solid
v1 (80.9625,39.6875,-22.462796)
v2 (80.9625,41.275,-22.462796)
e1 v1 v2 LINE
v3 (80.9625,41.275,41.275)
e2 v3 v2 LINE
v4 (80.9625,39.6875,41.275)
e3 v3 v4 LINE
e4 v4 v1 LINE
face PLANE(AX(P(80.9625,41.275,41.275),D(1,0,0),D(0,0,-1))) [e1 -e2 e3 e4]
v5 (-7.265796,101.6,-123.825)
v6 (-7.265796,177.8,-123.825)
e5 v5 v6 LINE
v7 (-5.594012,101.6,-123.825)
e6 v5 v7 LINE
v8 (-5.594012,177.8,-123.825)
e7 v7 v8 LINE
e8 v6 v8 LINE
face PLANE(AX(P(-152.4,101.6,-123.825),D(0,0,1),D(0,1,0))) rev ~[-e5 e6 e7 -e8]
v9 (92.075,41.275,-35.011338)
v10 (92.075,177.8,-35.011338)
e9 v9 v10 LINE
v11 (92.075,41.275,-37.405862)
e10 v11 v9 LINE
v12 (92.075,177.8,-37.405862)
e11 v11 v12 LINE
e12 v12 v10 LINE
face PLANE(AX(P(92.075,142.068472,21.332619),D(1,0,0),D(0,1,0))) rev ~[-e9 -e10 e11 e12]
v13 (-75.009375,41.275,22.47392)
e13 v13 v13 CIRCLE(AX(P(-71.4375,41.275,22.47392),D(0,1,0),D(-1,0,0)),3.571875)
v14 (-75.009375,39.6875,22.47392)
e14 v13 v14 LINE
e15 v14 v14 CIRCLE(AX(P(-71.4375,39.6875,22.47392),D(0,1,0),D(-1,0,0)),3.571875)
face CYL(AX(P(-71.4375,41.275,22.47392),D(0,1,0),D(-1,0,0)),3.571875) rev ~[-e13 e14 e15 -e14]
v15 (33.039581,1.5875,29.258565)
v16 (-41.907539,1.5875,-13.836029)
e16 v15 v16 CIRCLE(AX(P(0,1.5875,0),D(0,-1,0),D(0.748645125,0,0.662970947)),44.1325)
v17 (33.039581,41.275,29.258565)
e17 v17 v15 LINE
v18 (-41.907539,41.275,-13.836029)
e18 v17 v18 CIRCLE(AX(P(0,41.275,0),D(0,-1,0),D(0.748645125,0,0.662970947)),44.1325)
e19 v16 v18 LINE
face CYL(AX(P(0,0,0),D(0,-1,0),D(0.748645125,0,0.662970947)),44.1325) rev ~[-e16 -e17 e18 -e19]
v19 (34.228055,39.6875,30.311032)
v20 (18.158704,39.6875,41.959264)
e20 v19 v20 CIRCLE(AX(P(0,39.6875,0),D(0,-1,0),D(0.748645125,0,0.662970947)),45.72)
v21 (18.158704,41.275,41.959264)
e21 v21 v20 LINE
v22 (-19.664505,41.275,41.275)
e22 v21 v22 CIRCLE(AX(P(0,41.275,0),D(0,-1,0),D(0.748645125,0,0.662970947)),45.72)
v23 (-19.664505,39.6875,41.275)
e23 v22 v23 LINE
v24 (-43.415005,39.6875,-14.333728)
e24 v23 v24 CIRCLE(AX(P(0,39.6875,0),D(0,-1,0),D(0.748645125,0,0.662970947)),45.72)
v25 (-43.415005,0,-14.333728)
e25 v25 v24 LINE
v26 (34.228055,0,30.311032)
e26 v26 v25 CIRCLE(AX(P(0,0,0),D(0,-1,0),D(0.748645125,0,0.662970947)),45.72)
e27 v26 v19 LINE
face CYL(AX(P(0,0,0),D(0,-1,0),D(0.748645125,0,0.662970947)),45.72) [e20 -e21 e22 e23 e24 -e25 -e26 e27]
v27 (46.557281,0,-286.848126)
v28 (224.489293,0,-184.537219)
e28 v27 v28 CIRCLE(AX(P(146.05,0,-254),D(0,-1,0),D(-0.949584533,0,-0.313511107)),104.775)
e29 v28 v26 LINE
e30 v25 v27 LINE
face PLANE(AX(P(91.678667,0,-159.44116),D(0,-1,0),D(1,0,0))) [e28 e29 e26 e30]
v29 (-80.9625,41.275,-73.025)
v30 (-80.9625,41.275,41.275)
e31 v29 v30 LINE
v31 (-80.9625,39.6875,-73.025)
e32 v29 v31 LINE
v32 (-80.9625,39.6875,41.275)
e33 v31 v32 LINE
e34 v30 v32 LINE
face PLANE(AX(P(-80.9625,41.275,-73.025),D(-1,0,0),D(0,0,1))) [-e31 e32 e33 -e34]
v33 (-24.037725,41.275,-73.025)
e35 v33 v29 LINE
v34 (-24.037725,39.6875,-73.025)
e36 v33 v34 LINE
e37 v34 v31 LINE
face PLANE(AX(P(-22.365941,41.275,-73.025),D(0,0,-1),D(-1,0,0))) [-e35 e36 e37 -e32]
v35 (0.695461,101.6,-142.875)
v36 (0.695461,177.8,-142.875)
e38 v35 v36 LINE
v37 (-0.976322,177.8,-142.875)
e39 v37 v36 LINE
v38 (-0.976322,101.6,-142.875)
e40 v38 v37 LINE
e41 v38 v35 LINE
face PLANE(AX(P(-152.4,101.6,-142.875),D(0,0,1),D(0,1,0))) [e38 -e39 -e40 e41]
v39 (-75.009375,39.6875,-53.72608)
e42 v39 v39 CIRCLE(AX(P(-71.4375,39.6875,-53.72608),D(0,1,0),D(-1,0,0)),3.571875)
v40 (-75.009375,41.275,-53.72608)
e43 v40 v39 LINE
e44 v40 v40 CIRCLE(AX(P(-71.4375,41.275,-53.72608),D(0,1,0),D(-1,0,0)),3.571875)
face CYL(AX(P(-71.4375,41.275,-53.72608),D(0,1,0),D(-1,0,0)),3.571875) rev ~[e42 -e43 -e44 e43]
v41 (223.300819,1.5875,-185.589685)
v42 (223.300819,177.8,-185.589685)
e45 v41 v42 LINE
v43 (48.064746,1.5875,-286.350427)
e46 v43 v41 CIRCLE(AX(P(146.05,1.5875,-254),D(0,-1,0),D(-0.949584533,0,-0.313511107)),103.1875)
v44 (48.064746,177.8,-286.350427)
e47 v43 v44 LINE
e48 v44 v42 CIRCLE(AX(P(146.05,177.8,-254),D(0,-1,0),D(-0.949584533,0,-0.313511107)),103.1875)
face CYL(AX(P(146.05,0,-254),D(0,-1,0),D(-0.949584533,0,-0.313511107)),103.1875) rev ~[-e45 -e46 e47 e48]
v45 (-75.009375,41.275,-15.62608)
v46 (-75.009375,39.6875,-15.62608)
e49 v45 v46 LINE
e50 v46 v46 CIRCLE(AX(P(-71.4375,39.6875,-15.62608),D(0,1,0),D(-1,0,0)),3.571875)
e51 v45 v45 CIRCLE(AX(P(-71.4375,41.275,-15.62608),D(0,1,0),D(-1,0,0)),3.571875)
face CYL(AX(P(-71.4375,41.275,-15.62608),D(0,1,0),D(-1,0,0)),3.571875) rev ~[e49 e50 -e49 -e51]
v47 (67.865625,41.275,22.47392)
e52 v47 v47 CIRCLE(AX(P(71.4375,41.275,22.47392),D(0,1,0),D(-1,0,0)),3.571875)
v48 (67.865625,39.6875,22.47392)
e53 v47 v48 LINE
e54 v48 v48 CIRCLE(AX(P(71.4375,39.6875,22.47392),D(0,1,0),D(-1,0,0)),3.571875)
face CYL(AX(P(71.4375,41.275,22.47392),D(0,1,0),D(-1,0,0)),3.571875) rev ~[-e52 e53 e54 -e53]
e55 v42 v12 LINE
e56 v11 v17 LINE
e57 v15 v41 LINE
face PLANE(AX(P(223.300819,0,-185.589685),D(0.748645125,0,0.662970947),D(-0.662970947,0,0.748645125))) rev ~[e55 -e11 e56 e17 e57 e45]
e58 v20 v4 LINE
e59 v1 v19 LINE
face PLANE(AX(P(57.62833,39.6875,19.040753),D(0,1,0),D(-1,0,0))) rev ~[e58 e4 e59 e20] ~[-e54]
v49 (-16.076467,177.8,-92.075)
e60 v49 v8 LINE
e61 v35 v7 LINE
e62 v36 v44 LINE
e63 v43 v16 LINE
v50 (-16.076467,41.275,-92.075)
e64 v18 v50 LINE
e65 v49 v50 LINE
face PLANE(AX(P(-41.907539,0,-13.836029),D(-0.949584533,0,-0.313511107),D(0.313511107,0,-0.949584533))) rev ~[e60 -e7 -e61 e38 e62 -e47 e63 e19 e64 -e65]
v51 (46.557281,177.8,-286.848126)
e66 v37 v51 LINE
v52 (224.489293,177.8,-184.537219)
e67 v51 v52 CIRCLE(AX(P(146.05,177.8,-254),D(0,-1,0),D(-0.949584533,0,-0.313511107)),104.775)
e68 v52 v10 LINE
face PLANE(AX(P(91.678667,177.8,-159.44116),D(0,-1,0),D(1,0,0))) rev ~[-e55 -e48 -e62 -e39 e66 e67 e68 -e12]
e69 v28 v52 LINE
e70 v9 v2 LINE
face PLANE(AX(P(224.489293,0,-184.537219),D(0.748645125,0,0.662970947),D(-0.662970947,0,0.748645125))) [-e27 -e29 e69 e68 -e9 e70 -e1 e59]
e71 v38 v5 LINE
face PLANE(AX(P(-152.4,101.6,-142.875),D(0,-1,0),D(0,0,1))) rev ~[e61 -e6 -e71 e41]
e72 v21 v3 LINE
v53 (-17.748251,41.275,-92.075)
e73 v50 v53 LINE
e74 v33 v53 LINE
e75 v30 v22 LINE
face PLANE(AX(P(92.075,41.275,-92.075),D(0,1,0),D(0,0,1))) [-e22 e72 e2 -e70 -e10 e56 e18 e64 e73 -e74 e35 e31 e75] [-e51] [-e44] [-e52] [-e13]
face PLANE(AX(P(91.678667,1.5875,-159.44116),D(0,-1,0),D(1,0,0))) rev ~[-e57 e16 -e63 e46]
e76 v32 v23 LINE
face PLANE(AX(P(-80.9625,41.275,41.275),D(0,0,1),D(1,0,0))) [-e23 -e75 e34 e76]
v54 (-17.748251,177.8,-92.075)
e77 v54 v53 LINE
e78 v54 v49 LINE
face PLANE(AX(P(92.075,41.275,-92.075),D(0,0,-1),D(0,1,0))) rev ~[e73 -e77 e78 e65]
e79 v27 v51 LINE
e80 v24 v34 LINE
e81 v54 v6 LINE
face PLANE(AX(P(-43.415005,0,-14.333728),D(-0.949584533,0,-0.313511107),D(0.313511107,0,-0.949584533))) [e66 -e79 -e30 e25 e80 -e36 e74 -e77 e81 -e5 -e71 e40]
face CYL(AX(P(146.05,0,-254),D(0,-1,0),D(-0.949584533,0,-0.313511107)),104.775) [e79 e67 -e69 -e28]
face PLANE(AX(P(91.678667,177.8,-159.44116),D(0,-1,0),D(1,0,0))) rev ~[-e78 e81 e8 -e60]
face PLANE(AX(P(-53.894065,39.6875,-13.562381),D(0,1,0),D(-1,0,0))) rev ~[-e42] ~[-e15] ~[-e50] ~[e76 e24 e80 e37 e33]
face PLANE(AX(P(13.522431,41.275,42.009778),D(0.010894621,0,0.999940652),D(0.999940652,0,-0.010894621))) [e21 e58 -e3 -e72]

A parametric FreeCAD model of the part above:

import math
import FreeCAD as App
import Part
import Sketcher
Q = App.Units.Quantity


def faces_at(feature, points):
    """Names of the faces that lie closest to the given points."""
    faces = feature.Shape.Faces
    near = lambda p: min(range(len(faces)), key=lambda i: faces[i].distToShape(Part.Vertex(*p))[0])
    return sorted({f"Face{near(p) + 1}" for p in points})


def add_polygon(sketch, points):
    """Adds a closed chain of lines whose ends are joined by coincident constraints."""
    first, n = sketch.GeometryCount, len(points)
    for a, b in zip(points, points[1:] + points[:1]):
        sketch.addGeometry(Part.LineSegment(App.Vector(*a, 0), App.Vector(*b, 0)), False)
    for i in range(n):
        sketch.addConstraint(Sketcher.Constraint("Coincident", first + i, 2, first + (i + 1) % n, 1))

doc = App.newDocument("Part")
params = doc.addObject("Spreadsheet::Sheet", "Params")
for row, (alias, value) in enumerate([
    ("sketch1_radius", "1.8 in"),
    ("sketch1_radius2", "4.125 in"),
    ("pad1_length", "7 in"),
    ("thickness_wall", "0.0625 in"),
    ("sketch3_diameter", "0.28125 in"),
    ("sketch3_height", "4.5 in"),
    ("pad2_length", "0.0625 in"),
    ("sketch4_width", "3 in"),
    ("sketch4_height", "0.75 in"),
    ("pocket2_length", "154.095461 mm"),
], start=1):
    params.set(f"A{row}", alias)
    params.set(f"B{row}", "=" + value)
    params.setAlias(f"B{row}", alias)

body = doc.addObject("PartDesign::Body", "Body")

sketch1 = body.newObject("Sketcher::SketchObject", "Sketch")
sketch1.AttachmentSupport = (doc.getObject("XZ_Plane"), [""])
sketch1.MapMode = "FlatFace"
sketch1.addGeometry(Part.LineSegment(App.Vector(224.489293, -184.537219, 0), App.Vector(34.228055, 30.311032, 0)), False)
sketch1.addGeometry(Part.ArcOfCircle(Part.Circle(App.Vector(0, 0, 0), App.Vector(0, 0, 1), 45.72), math.radians(41.52685), math.radians(198.270954)), False)
sketch1.addGeometry(Part.LineSegment(App.Vector(-43.415005, -14.333728, 0), App.Vector(46.557281, -286.848126, 0)), False)
sketch1.addGeometry(Part.ArcOfCircle(Part.Circle(App.Vector(146.05, -254, 0), App.Vector(0, 0, 1), 104.775), math.radians(-161.729046), math.radians(41.52685)), False)
sketch1.addConstraint(Sketcher.Constraint("Tangent", 0, 2, 1, 1))
sketch1.addConstraint(Sketcher.Constraint("Tangent", 1, 2, 2, 1))
sketch1.addConstraint(Sketcher.Constraint("Tangent", 2, 2, 3, 1))
sketch1.addConstraint(Sketcher.Constraint("Tangent", 3, 2, 0, 1))
sketch1.addConstraint(Sketcher.Constraint("Coincident", 1, 3, -1, 1))
sketch1.addConstraint(Sketcher.Constraint("Radius", 1, Q("1.8 in")))
sketch1.addConstraint(Sketcher.Constraint("DistanceY", 3, 3, -1, 1, Q("10 in")))
sketch1.addConstraint(Sketcher.Constraint("Radius", 3, Q("4.125 in")))
sketch1.addConstraint(Sketcher.Constraint("DistanceX", -1, 1, 3, 3, Q("5.75 in")))
sketch1.setExpression("Constraints[5]", "Params.sketch1_radius")
sketch1.setExpression("Constraints[7]", "Params.sketch1_radius2")
pad1 = body.newObject("PartDesign::Pad", "Pad")
pad1.Profile = sketch1
pad1.setExpression("Length", "Params.pad1_length")
pad1.Reversed = True
doc.recompute()

thickness = body.newObject("PartDesign::Thickness", "Thickness")
thickness.Base = (pad1, faces_at(pad1, [(102.552, 177.8, -156.528)]))
thickness.setExpression("Value", "Params.thickness_wall")
thickness.Reversed = True
thickness.Join = "Arc"

sketch2 = body.newObject("Sketcher::SketchObject", "Sketch001")
sketch2.AttachmentSupport = (doc.getObject("YZ_Plane"), [""])
sketch2.MapMode = "FlatFace"
sketch2.AttachmentOffset = App.Placement(App.Vector(0, 0, 3.625 * 25.4), App.Rotation())
add_polygon(sketch2, [(41.275, 134.740237), (41.275, -92.075), (242.861945, -92.075), (242.861945, 134.740237)])
sketch2.addConstraint(Sketcher.Constraint("Vertical", 0))
sketch2.addConstraint(Sketcher.Constraint("Horizontal", 1))
sketch2.addConstraint(Sketcher.Constraint("Vertical", 2))
sketch2.addConstraint(Sketcher.Constraint("Horizontal", 3))
sketch2.addConstraint(Sketcher.Constraint("DistanceX", -1, 1, 0, 2, Q("1.625 in")))
sketch2.addConstraint(Sketcher.Constraint("DistanceY", 0, 2, -1, 1, Q("3.625 in")))
sketch2.addConstraint(Sketcher.Constraint("DistanceX", 1, 1, 1, 2, Q("201.586945 mm")))
sketch2.addConstraint(Sketcher.Constraint("DistanceY", 0, 2, 0, 1, Q("226.815237 mm")))
pocket1 = body.newObject("PartDesign::Pocket", "Pocket")
pocket1.Profile = sketch2
pocket1.Type = "ThroughAll"

sketch3 = body.newObject("Sketcher::SketchObject", "Sketch002")
sketch3.AttachmentSupport = (doc.getObject("XZ_Plane"), [""])
sketch3.MapMode = "FlatFace"
sketch3.AttachmentOffset = App.Placement(App.Vector(0, 0, -1.625 * 25.4), App.Rotation())
sketch3.addGeometry(Part.LineSegment(App.Vector(13.522431, 42.009778, 0), App.Vector(80.9625, 41.275, 0)), False)
sketch3.addGeometry(Part.LineSegment(App.Vector(80.9625, 41.275, 0), App.Vector(80.9625, -24.85732, 0)), False)
sketch3.addGeometry(Part.LineSegment(App.Vector(80.9625, -24.85732, 0), App.Vector(33.039581, 29.258565, 0)), False)
sketch3.addGeometry(Part.ArcOfCircle(Part.Circle(App.Vector(0, 0, 0), App.Vector(0, 0, 1), 44.1325), math.radians(41.52685), math.radians(72.157271)), False)
sketch3.addGeometry(Part.Circle(App.Vector(71.4375, 22.47392, 0), App.Vector(0, 0, 1), 3.571875), False)
sketch3.addGeometry(Part.LineSegment(App.Vector(-80.9625, -73.025, 0), App.Vector(-80.9625, 41.275, 0)), False)
sketch3.addGeometry(Part.LineSegment(App.Vector(-80.9625, 41.275, 0), App.Vector(-15.622162, 41.275, 0)), False)
sketch3.addGeometry(Part.ArcOfCircle(Part.Circle(App.Vector(0, 0, 0), App.Vector(0, 0, 1), 44.1325), math.radians(110.731137), math.radians(198.270954)), False)
sketch3.addGeometry(Part.LineSegment(App.Vector(-41.907539, -13.836029, 0), App.Vector(-22.365941, -73.025, 0)), False)
sketch3.addGeometry(Part.LineSegment(App.Vector(-22.365941, -73.025, 0), App.Vector(-80.9625, -73.025, 0)), False)
sketch3.addGeometry(Part.Circle(App.Vector(-71.4375, -53.72608, 0), App.Vector(0, 0, 1), 3.571875), False)
sketch3.addGeometry(Part.Circle(App.Vector(-71.4375, -15.62608, 0), App.Vector(0, 0, 1), 3.571875), False)
sketch3.addGeometry(Part.Circle(App.Vector(-71.4375, 22.47392, 0), App.Vector(0, 0, 1), 3.571875), False)
sketch3.addConstraint(Sketcher.Constraint("Coincident", 0, 2, 1, 1))
sketch3.addConstraint(Sketcher.Constraint("Coincident", 1, 2, 2, 1))
sketch3.addConstraint(Sketcher.Constraint("Tangent", 2, 2, 3, 1))
sketch3.addConstraint(Sketcher.Constraint("Coincident", 3, 2, 0, 1))
sketch3.addConstraint(Sketcher.Constraint("Coincident", 5, 2, 6, 1))
sketch3.addConstraint(Sketcher.Constraint("Coincident", 6, 2, 7, 1))
sketch3.addConstraint(Sketcher.Constraint("Tangent", 7, 2, 8, 1))
sketch3.addConstraint(Sketcher.Constraint("Coincident", 8, 2, 9, 1))
sketch3.addConstraint(Sketcher.Constraint("Coincident", 9, 2, 5, 1))
sketch3.addConstraint(Sketcher.Constraint("Vertical", 1))
sketch3.addConstraint(Sketcher.Constraint("Vertical", 5))
sketch3.addConstraint(Sketcher.Constraint("Horizontal", 6))
sketch3.addConstraint(Sketcher.Constraint("Horizontal", 9))
sketch3.addConstraint(Sketcher.Constraint("Coincident", 3, 3, -1, 1))
sketch3.addConstraint(Sketcher.Constraint("Coincident", 7, 3, -1, 1))
sketch3.addConstraint(Sketcher.Constraint("Equal", 3, 7))
sketch3.addConstraint(Sketcher.Constraint("Equal", 4, 10))
sketch3.addConstraint(Sketcher.Constraint("Equal", 10, 11))
sketch3.addConstraint(Sketcher.Constraint("Equal", 11, 12))
sketch3.addConstraint(Sketcher.Constraint("Symmetric", 4, 3, 12, 3, -2))
sketch3.addConstraint(Sketcher.Constraint("Symmetric", 0, 2, 5, 2, -2))
sketch3.addConstraint(Sketcher.Constraint("Vertical", 10, 3, 11, 3))
sketch3.addConstraint(Sketcher.Constraint("Vertical", 11, 3, 12, 3))
sketch3.addConstraint(Sketcher.Constraint("Diameter", 4, Q("0.28125 in")))
sketch3.addConstraint(Sketcher.Constraint("DistanceY", 5, 1, 5, 2, Q("4.5 in")))
sketch3.addConstraint(Sketcher.Constraint("DistanceY", 10, 3, 4, 3, Q("3 in")))
sketch3.addConstraint(Sketcher.Constraint("DistanceX", 12, 3, 0, 2, Q("6 in")))
sketch3.addConstraint(Sketcher.Constraint("Radius", 3, Q("1.7375 in")))
sketch3.addConstraint(Sketcher.Constraint("DistanceY", 10, 3, 11, 3, Q("1.5 in")))
sketch3.addConstraint(Sketcher.Constraint("DistanceX", -1, 1, 4, 3, Q("2.8125 in")))
sketch3.addConstraint(Sketcher.Constraint("DistanceY", -1, 1, 0, 2, Q("1.625 in")))
sketch3.addConstraint(Sketcher.Constraint("DistanceY", -1, 1, 4, 3, Q("0.8848 in")))
sketch3.addConstraint(Sketcher.Constraint("DistanceX", 9, 2, 9, 1, Q("58.596559 mm")))
sketch3.addConstraint(Sketcher.Constraint("DistanceY", 1, 2, 1, 1, Q("66.13232 mm")))
sketch3.addConstraint(Sketcher.Constraint("Distance", 0, Q("67.444072 mm")))
sketch3.setExpression("Constraints[23]", "Params.sketch3_diameter")
sketch3.setExpression("Constraints[24]", "Params.sketch3_height")
pad2 = body.newObject("PartDesign::Pad", "Pad001")
pad2.Profile = sketch3
pad2.setExpression("Length", "Params.pad2_length")

sketch4 = body.newObject("Sketcher::SketchObject", "Sketch003")
sketch4.AttachmentSupport = (doc.getObject("YZ_Plane"), [""])
sketch4.MapMode = "FlatFace"
sketch4.AttachmentOffset = App.Placement(App.Vector(0, 0, -6 * 25.4), App.Rotation())
add_polygon(sketch4, [(101.6, -123.825), (101.6, -142.875), (177.8, -142.875), (177.8, -123.825)])
sketch4.addConstraint(Sketcher.Constraint("Vertical", 0))
sketch4.addConstraint(Sketcher.Constraint("Horizontal", 1))
sketch4.addConstraint(Sketcher.Constraint("Vertical", 2))
sketch4.addConstraint(Sketcher.Constraint("Horizontal", 3))
sketch4.addConstraint(Sketcher.Constraint("DistanceX", 1, 1, 1, 2, Q("3 in")))
sketch4.addConstraint(Sketcher.Constraint("DistanceX", -1, 1, 0, 2, Q("4 in")))
sketch4.addConstraint(Sketcher.Constraint("DistanceY", 0, 2, 0, 1, Q("0.75 in")))
sketch4.addConstraint(Sketcher.Constraint("DistanceY", 0, 2, -1, 1, Q("5.625 in")))
sketch4.setExpression("Constraints[8]", "Params.sketch4_width")
sketch4.setExpression("Constraints[10]", "Params.sketch4_height")
pocket2 = body.newObject("PartDesign::Pocket", "Pocket001")
pocket2.Profile = sketch4
pocket2.setExpression("Length", "Params.pocket2_length")
pocket2.Reversed = True

doc.recompute()
